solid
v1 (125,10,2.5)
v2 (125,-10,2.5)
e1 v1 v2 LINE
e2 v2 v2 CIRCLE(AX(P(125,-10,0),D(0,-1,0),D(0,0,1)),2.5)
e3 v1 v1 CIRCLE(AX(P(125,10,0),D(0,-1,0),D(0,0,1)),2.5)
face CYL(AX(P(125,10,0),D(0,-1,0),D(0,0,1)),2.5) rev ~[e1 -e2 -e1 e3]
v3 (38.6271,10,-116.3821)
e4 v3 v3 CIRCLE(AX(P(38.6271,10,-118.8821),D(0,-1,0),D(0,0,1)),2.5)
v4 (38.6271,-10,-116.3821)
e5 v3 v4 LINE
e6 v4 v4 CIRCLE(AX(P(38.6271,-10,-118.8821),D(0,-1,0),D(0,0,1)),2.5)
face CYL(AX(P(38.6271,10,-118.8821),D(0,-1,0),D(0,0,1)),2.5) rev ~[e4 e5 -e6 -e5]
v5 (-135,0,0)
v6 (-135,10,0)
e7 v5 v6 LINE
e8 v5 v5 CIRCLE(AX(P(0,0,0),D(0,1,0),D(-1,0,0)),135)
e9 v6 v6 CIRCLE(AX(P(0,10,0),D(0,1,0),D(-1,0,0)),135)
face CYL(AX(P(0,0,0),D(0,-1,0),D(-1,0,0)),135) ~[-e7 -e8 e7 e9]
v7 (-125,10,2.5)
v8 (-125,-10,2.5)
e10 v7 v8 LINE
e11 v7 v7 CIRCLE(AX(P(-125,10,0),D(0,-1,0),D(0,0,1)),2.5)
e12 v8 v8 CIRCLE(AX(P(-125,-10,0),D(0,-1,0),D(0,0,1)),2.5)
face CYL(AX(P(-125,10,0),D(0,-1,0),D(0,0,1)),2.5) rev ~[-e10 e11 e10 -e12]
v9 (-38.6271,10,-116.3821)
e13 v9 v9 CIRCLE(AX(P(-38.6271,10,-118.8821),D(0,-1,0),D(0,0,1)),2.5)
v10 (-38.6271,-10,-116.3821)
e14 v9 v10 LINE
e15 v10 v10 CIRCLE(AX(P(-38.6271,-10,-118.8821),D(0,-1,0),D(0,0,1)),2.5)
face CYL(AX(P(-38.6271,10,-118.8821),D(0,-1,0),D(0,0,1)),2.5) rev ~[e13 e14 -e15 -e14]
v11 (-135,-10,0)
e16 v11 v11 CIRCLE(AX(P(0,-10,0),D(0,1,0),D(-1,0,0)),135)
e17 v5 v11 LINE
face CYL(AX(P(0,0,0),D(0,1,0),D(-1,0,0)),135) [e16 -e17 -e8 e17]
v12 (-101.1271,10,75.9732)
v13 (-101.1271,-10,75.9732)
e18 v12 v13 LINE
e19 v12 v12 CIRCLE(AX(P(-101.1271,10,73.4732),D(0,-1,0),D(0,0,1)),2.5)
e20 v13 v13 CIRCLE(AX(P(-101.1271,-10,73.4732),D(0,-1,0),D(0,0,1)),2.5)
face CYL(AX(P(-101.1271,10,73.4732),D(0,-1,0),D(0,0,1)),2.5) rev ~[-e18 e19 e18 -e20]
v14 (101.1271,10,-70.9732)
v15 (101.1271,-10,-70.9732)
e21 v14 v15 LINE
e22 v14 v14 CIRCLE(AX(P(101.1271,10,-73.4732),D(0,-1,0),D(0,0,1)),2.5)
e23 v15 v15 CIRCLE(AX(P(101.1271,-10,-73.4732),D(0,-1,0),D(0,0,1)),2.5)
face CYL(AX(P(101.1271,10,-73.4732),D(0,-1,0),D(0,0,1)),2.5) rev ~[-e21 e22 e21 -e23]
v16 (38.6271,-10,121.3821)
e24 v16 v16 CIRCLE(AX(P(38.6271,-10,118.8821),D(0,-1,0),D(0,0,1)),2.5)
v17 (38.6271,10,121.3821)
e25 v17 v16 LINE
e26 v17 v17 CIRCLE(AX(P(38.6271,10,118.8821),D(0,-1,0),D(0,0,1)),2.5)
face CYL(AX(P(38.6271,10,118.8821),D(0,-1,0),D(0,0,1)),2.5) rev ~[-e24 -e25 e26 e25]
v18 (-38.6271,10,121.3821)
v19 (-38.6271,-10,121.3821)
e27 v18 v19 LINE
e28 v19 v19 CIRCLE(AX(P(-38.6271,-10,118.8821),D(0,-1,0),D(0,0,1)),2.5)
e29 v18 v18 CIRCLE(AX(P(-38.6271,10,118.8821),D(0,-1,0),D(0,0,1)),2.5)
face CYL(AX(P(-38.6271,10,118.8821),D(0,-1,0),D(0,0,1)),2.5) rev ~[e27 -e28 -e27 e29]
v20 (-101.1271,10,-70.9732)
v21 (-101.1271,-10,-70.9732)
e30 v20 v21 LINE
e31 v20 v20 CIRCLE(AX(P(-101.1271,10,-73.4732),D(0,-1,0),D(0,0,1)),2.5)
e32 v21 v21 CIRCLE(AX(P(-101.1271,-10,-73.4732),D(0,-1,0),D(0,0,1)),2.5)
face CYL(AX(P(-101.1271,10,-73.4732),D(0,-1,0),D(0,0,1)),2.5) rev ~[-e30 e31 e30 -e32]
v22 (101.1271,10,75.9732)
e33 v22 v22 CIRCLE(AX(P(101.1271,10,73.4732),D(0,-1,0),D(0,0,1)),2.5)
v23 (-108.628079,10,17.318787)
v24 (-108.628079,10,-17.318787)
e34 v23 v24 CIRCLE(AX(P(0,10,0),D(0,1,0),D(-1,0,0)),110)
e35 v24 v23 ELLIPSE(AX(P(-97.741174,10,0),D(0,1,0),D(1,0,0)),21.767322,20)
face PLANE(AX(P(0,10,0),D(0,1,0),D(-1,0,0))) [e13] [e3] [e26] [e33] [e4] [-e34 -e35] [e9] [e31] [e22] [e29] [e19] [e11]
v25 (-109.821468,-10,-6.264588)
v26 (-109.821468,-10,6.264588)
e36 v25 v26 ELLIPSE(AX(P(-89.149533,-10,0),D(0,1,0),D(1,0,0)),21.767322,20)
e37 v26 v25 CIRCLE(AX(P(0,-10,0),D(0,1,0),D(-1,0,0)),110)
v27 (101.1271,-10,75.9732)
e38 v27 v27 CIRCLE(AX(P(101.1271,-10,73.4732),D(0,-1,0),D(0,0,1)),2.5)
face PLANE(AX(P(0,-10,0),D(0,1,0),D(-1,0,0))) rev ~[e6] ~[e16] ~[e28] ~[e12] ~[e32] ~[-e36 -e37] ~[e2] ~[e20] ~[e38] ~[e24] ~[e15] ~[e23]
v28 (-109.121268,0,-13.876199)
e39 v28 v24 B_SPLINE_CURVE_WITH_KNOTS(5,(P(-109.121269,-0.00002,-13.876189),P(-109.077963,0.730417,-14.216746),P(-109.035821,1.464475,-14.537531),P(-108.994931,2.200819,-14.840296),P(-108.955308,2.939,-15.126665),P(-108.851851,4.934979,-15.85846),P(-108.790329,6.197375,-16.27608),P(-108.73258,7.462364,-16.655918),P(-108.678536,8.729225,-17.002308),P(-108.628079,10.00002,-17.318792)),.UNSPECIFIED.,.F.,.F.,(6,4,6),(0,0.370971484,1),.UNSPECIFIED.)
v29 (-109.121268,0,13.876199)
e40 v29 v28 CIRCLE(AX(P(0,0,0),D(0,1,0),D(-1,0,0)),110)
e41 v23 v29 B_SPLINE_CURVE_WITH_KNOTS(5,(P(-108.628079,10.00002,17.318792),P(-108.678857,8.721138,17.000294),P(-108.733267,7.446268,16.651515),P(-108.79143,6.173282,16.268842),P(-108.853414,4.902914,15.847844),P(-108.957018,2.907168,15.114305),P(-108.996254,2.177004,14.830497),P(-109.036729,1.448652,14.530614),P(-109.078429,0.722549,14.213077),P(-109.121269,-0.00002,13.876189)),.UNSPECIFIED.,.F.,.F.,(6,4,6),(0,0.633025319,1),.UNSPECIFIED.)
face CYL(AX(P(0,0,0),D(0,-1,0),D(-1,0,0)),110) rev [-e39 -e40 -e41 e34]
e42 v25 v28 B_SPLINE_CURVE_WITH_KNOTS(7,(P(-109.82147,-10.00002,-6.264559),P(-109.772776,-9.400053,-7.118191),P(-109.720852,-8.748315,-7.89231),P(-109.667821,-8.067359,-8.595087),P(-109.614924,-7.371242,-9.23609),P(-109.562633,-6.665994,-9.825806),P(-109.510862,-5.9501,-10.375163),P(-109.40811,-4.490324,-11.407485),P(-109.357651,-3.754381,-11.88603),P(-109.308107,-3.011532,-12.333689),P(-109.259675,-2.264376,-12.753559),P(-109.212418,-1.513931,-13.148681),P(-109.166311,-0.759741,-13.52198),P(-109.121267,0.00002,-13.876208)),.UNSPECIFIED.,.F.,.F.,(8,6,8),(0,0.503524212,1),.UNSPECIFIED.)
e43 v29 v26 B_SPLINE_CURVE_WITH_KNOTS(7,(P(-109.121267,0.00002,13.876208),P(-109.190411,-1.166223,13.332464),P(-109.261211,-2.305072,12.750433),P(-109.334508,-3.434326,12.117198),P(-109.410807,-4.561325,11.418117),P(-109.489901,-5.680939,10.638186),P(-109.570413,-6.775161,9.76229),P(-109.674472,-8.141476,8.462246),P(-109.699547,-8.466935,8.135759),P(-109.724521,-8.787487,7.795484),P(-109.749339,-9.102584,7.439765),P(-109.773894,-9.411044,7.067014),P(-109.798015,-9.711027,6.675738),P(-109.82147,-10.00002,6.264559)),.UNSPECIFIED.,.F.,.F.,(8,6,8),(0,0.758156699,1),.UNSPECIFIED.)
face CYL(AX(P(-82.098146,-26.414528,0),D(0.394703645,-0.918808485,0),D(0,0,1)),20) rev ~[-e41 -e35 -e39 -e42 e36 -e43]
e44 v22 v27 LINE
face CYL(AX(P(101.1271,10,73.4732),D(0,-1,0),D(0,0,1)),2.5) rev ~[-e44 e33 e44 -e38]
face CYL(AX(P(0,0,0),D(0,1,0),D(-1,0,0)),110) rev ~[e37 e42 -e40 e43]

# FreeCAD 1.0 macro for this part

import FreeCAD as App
import Part
import Sketcher

doc = App.newDocument("Part")
body = doc.addObject("PartDesign::Body", "Body")

sketch1 = doc.addObject("Sketcher::SketchObject", "Sketch")
body.addObject(sketch1)
sketch1.AttachmentSupport = (doc.XZ_Plane, [""])
sketch1.MapMode = "FlatFace"
sketch1.addGeometry([
    Part.Circle(App.Vector(0, 0, 0), App.Vector(0, 0, 1), 135),
    Part.Circle(App.Vector(0, 0, 0), App.Vector(0, 0, 1), 110),
], False)
sketch1.addConstraint([
    Sketcher.Constraint("Coincident", 0, 3, -1, 1),
    Sketcher.Constraint("Coincident", 1, 3, -1, 1),
    Sketcher.Constraint("Diameter", 0, 270.0),
    Sketcher.Constraint("Diameter", 1, 220.0),
])
pad1 = doc.addObject("PartDesign::Pad", "Pad")
body.addObject(pad1)
pad1.Profile = sketch1
pad1.Length = 20
pad1.Midplane = True

sketch2 = doc.addObject("Sketcher::SketchObject", "Sketch001")
body.addObject(sketch2)
sketch2.AttachmentSupport = (doc.XZ_Plane, [""])
sketch2.MapMode = "FlatFace"
sketch2.AttachmentOffset = App.Placement(App.Vector(0, 0, -10), App.Rotation())
sketch2.addGeometry([
    Part.Circle(App.Vector(125, 0, 0), App.Vector(0, 0, 1), 2.5),
    Part.Circle(App.Vector(101.1, 73.5, 0), App.Vector(0, 0, 1), 2.5),
    Part.Circle(App.Vector(38.6, 118.9, 0), App.Vector(0, 0, 1), 2.5),
    Part.Circle(App.Vector(-38.6, 118.9, 0), App.Vector(0, 0, 1), 2.5),
    Part.Circle(App.Vector(-101.1, 73.5, 0), App.Vector(0, 0, 1), 2.5),
    Part.Circle(App.Vector(-125, 0, 0), App.Vector(0, 0, 1), 2.5),
    Part.Circle(App.Vector(-101.1, -73.5, 0), App.Vector(0, 0, 1), 2.5),
    Part.Circle(App.Vector(-38.6, -118.9, 0), App.Vector(0, 0, 1), 2.5),
    Part.Circle(App.Vector(38.6, -118.9, 0), App.Vector(0, 0, 1), 2.5),
    Part.Circle(App.Vector(101.1, -73.5, 0), App.Vector(0, 0, 1), 2.5),
], False)
sketch2.addConstraint([
    Sketcher.Constraint("Equal", 0, 1),
    Sketcher.Constraint("Equal", 1, 2),
    Sketcher.Constraint("Equal", 2, 3),
    Sketcher.Constraint("Equal", 3, 4),
    Sketcher.Constraint("Equal", 4, 5),
    Sketcher.Constraint("Equal", 5, 6),
    Sketcher.Constraint("Equal", 6, 7),
    Sketcher.Constraint("Equal", 7, 8),
    Sketcher.Constraint("Equal", 8, 9),
    Sketcher.Constraint("Symmetric", 0, 3, 5, 3, -1, 1),
    Sketcher.Constraint("Symmetric", 1, 3, 6, 3, -1, 1),
    Sketcher.Constraint("Symmetric", 2, 3, 7, 3, -1, 1),
    Sketcher.Constraint("Symmetric", 3, 3, 8, 3, -1, 1),
    Sketcher.Constraint("Symmetric", 4, 3, 9, 3, -1, 1),
    Sketcher.Constraint("Symmetric", 2, 3, 3, 3, -2),
    Sketcher.Constraint("Symmetric", 1, 3, 4, 3, -2),
    Sketcher.Constraint("PointOnObject", 0, 3, -1),
    Sketcher.Constraint("Diameter", 0, 5.0),
    Sketcher.Constraint("DistanceX", -1, 1, 0, 3, 125.0),
    Sketcher.Constraint("DistanceX", 2, 3, 1, 3, 62.5),
    Sketcher.Constraint("DistanceX", -1, 1, 1, 3, 101.127),
    Sketcher.Constraint("DistanceY", -1, 1, 2, 3, 118.882),
    Sketcher.Constraint("DistanceY", 1, 3, 2, 3, 45.409),
])
doc.recompute()
hole = doc.addObject("PartDesign::Hole", "Hole")
body.addObject(hole)
hole.Profile = sketch2
hole.ThreadType = "None"
hole.Diameter = 5
hole.DepthType = "ThroughAll"
hole.Reversed = True

sketch3 = doc.addObject("Sketcher::SketchObject", "Sketch002")
body.addObject(sketch3)
sketch3.Placement = App.Placement(App.Vector(-109.8713, -38.3432, -12.7), App.Rotation(App.Vector(0, 0, 1), App.Vector(-0.918808485, -0.394703645, 0), App.Vector(0.394703645, -0.918808485, 0), "ZXY"))
sketch3.addGeometry(Part.Circle(App.Vector(13, -30, 0), App.Vector(0, 0, 1), 20), False)
sketch3.addConstraint([
    Sketcher.Constraint("Diameter", 0, 40.0),
    Sketcher.Constraint("DistanceX", -1, 1, 0, 3, 12.7),
    Sketcher.Constraint("DistanceY", 0, 3, -1, 1, 30.2265),
])
pocket1 = doc.addObject("PartDesign::Pocket", "Pocket")
body.addObject(pocket1)
pocket1.Profile = sketch3
pocket1.Length = 251.3

doc.recompute()
